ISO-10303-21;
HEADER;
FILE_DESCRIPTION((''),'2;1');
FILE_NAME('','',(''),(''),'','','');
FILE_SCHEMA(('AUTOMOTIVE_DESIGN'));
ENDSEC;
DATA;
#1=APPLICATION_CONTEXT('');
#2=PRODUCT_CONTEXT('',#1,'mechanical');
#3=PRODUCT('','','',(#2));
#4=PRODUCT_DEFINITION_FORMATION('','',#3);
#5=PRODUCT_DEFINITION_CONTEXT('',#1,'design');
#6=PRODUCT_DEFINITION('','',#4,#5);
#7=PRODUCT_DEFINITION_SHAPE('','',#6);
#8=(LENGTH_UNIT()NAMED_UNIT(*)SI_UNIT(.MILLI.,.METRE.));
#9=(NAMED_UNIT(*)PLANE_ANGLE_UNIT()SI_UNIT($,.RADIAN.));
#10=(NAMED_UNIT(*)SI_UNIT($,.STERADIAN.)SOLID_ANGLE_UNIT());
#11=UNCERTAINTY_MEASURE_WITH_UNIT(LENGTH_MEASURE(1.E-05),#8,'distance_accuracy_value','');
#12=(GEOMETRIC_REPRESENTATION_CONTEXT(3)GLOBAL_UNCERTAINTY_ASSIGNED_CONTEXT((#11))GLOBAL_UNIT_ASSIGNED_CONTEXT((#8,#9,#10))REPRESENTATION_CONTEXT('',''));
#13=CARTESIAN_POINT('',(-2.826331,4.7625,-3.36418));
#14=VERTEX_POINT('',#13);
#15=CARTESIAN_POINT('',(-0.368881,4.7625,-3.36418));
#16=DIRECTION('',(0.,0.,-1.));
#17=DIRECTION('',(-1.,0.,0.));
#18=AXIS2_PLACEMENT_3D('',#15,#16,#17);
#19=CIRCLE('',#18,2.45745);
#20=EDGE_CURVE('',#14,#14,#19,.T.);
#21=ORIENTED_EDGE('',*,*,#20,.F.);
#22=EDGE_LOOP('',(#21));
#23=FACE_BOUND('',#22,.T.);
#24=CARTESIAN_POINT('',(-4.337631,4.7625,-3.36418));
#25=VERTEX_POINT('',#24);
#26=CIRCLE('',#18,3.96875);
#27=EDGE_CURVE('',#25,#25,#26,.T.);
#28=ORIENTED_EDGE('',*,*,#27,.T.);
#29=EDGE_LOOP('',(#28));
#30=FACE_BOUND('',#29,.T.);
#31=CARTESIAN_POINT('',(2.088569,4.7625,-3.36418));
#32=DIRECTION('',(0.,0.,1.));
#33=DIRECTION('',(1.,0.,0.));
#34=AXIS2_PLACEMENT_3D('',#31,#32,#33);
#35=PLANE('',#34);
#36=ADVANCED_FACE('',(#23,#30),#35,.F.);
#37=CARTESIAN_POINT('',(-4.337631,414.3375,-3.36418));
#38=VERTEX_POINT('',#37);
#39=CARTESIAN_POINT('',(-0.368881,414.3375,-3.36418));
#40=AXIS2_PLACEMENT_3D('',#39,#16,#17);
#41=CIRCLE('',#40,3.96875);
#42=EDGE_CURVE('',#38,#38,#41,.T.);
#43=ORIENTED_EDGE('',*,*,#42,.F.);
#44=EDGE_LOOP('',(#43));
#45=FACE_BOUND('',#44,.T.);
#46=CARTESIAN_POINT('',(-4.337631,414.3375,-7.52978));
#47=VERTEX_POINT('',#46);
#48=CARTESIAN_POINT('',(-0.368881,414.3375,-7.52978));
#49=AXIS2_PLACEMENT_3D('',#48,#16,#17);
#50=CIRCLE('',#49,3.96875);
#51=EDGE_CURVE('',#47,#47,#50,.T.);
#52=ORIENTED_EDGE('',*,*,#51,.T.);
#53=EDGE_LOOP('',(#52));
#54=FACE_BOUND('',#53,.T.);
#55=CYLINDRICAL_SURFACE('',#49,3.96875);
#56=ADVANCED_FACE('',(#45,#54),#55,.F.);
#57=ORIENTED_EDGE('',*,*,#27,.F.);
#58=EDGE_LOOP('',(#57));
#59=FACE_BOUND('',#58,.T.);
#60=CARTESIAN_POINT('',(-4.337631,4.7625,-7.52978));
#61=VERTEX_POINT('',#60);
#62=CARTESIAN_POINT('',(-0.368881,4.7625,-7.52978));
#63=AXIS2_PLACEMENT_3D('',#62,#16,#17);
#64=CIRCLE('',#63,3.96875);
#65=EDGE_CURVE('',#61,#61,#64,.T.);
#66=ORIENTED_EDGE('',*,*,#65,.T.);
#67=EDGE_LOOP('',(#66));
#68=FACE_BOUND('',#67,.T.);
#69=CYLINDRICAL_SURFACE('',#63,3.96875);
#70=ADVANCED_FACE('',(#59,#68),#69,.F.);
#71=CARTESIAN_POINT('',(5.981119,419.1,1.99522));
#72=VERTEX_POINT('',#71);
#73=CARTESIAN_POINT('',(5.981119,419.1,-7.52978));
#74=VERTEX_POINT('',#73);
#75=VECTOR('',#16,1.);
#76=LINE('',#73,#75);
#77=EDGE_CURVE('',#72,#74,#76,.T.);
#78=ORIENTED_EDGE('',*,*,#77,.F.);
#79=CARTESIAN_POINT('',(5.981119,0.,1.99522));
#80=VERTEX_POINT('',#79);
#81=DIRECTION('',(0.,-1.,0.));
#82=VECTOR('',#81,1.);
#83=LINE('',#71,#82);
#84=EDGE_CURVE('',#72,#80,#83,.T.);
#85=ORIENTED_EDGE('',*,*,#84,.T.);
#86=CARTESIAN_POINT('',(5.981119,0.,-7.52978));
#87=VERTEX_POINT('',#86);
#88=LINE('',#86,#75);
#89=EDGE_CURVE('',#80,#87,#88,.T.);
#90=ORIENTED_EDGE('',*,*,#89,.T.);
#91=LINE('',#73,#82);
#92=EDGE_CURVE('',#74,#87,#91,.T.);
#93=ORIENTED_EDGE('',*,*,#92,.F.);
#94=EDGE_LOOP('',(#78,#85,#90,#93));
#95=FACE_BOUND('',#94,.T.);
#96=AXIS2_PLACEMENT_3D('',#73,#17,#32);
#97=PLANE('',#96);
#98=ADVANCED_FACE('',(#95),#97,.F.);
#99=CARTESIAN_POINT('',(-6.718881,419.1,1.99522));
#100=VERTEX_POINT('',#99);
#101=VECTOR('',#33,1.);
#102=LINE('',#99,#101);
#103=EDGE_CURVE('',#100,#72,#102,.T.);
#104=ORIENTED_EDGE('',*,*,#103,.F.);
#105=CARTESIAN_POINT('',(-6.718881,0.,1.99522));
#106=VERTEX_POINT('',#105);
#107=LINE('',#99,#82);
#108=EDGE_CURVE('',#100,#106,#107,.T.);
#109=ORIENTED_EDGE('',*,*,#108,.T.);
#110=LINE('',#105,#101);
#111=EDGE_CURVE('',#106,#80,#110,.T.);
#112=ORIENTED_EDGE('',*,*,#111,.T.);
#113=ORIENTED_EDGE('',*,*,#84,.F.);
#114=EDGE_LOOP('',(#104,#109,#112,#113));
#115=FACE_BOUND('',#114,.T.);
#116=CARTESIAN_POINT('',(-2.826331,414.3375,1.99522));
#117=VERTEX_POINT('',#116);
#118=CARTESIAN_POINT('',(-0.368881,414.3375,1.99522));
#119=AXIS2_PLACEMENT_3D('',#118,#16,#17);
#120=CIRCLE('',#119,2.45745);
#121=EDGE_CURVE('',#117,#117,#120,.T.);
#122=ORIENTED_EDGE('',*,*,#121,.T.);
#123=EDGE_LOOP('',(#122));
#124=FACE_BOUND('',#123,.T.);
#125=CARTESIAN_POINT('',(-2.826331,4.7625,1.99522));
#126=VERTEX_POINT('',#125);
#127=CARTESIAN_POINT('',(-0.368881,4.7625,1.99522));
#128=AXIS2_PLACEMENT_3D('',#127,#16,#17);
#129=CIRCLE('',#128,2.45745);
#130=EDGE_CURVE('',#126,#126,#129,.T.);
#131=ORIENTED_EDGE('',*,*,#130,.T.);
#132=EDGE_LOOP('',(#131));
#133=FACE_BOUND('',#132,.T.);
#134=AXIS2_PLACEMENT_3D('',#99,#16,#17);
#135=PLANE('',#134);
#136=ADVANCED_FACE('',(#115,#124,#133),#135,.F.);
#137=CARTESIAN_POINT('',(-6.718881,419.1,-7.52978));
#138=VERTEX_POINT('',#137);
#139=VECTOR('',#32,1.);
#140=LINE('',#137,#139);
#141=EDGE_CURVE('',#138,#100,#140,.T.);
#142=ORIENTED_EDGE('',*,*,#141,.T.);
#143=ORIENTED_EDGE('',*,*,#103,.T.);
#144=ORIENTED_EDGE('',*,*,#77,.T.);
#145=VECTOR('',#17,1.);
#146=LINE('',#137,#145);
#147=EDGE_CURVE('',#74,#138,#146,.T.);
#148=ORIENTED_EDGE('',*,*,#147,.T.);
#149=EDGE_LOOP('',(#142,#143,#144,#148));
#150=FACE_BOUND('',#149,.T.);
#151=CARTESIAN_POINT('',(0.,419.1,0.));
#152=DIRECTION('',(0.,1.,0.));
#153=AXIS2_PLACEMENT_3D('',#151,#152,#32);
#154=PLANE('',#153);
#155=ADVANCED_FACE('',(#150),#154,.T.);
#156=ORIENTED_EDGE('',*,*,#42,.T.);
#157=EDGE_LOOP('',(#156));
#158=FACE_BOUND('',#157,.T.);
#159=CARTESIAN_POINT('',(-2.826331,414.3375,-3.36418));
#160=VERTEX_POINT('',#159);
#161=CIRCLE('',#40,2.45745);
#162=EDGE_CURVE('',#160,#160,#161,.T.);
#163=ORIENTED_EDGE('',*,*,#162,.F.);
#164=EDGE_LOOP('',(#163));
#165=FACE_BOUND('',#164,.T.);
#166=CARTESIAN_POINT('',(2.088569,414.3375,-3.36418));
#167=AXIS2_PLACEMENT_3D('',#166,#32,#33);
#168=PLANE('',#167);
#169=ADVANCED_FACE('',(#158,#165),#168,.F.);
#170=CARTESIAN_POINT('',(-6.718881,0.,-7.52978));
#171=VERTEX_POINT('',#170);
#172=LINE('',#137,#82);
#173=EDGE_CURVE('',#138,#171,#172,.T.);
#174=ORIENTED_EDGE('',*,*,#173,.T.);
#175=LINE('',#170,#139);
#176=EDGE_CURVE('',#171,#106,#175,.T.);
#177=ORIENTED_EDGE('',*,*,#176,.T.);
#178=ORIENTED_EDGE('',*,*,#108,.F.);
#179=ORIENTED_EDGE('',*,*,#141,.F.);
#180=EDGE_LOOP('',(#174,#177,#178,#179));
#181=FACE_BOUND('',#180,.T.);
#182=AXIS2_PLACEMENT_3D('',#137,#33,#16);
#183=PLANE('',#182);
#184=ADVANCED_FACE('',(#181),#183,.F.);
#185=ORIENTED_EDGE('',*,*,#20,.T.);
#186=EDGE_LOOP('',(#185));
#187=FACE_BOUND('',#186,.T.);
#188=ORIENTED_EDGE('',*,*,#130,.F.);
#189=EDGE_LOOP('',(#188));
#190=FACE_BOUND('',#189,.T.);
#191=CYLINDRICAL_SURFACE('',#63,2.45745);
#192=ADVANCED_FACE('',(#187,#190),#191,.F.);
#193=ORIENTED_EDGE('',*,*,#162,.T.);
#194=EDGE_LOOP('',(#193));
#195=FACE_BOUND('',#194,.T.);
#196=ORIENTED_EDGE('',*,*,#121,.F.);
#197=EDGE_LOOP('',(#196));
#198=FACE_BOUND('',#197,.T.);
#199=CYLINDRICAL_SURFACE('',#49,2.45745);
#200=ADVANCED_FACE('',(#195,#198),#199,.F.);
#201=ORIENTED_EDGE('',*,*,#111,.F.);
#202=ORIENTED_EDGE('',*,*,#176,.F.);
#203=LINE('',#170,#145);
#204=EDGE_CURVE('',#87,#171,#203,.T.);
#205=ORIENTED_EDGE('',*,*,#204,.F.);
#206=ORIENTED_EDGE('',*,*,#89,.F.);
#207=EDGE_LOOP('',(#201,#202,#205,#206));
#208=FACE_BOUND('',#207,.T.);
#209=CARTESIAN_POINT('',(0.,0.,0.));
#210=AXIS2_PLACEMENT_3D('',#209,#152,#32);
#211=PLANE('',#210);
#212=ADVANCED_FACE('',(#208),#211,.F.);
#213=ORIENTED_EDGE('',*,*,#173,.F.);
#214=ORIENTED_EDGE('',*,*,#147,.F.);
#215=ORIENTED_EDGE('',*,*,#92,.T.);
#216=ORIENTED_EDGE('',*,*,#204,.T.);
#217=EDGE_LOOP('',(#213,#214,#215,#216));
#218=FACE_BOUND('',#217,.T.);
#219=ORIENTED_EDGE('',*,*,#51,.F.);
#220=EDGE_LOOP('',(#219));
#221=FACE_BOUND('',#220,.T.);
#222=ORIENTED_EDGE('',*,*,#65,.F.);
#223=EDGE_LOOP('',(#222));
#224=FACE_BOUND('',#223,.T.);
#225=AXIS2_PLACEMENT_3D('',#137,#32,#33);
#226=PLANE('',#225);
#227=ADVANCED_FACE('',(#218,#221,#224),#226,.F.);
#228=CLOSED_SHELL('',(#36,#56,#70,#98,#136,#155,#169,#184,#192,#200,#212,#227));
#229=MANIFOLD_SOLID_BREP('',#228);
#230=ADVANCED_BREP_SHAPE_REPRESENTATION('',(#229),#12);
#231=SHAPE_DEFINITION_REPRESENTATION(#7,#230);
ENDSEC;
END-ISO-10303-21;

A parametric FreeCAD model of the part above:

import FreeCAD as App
import Part
import Sketcher
from FreeCAD import Vector
Q = App.Units.Quantity


def add_polygon(sketch, points):
    """Adds a closed chain of lines whose ends are joined by coincident constraints."""
    first, n = sketch.GeometryCount, len(points)
    for a, b in zip(points, points[1:] + points[:1]):
        sketch.addGeometry(Part.LineSegment(App.Vector(*a, 0), App.Vector(*b, 0)), False)
    for i in range(n):
        sketch.addConstraint(Sketcher.Constraint("Coincident", first + i, 2, first + (i + 1) % n, 1))

doc = App.newDocument("Part")
body = doc.addObject("PartDesign::Body", "Body")

# Sketch on XZ plane
sketch1 = body.newObject("Sketcher::SketchObject", "Sketch")
sketch1.AttachmentSupport = (doc.getObject("XZ_Plane"), [""])
sketch1.MapMode = "FlatFace"
add_polygon(sketch1, [(-7, -8), (-7, 2), (6, 2), (6, -8)])  # lines 0-3
sketch1.addConstraint([
    Sketcher.Constraint("Vertical", 0),
    Sketcher.Constraint("Horizontal", 1),
    Sketcher.Constraint("Vertical", 2),
    Sketcher.Constraint("Horizontal", 3),
    Sketcher.Constraint("DistanceX", 1, 1, 1, 2, Q("0.5 in")),
    Sketcher.Constraint("DistanceY", 0, 1, 0, 2, Q("0.375 in")),
    Sketcher.Constraint("DistanceX", 0, 2, -1, 1, 6.718881),
    Sketcher.Constraint("DistanceY", -1, 1, 0, 2, 1.99522),
])
pad1 = body.newObject("PartDesign::Pad", "Pad")
pad1.Profile = sketch1
pad1.Length = Q("16.5 in")
pad1.Reversed = True

# Sketch on XY plane
sketch2 = body.newObject("Sketcher::SketchObject", "Sketch001")
sketch2.AttachmentSupport = (doc.getObject("XY_Plane"), [""])
sketch2.MapMode = "FlatFace"
sketch2.AttachmentOffset = App.Placement(Vector(0, 0, -7.52978), App.Rotation())
sketch2.addGeometry([
    Part.Circle(Vector(-0.4, 414.3, 0), Vector(0, 0, 1), 2.5),
    Part.Circle(Vector(-0.4, 4.8, 0), Vector(0, 0, 1), 2.5),
], False)
sketch2.addConstraint([
    Sketcher.Constraint("Equal", 0, 1),
    Sketcher.Constraint("Vertical", 0, 3, 1, 3),
    Sketcher.Constraint("Diameter", 0, Q("0.1935 in")),
    Sketcher.Constraint("DistanceY", -1, 1, 0, 3, Q("16.3125 in")),
    Sketcher.Constraint("DistanceY", -1, 1, 1, 3, Q("0.1875 in")),
    Sketcher.Constraint("DistanceX", 0, 3, -1, 1, 0.368881),
])
doc.recompute()
hole = body.newObject("PartDesign::Hole", "Hole")
hole.Profile = sketch2
hole.ThreadType = "None"
hole.Diameter = Q("0.1935 in")
hole.DepthType = "ThroughAll"
hole.HoleCutType = "Counterbore"
hole.HoleCutDiameter = Q("0.3125 in")
hole.HoleCutDepth = Q("0.164 in")
hole.Reversed = True

doc.recompute()
